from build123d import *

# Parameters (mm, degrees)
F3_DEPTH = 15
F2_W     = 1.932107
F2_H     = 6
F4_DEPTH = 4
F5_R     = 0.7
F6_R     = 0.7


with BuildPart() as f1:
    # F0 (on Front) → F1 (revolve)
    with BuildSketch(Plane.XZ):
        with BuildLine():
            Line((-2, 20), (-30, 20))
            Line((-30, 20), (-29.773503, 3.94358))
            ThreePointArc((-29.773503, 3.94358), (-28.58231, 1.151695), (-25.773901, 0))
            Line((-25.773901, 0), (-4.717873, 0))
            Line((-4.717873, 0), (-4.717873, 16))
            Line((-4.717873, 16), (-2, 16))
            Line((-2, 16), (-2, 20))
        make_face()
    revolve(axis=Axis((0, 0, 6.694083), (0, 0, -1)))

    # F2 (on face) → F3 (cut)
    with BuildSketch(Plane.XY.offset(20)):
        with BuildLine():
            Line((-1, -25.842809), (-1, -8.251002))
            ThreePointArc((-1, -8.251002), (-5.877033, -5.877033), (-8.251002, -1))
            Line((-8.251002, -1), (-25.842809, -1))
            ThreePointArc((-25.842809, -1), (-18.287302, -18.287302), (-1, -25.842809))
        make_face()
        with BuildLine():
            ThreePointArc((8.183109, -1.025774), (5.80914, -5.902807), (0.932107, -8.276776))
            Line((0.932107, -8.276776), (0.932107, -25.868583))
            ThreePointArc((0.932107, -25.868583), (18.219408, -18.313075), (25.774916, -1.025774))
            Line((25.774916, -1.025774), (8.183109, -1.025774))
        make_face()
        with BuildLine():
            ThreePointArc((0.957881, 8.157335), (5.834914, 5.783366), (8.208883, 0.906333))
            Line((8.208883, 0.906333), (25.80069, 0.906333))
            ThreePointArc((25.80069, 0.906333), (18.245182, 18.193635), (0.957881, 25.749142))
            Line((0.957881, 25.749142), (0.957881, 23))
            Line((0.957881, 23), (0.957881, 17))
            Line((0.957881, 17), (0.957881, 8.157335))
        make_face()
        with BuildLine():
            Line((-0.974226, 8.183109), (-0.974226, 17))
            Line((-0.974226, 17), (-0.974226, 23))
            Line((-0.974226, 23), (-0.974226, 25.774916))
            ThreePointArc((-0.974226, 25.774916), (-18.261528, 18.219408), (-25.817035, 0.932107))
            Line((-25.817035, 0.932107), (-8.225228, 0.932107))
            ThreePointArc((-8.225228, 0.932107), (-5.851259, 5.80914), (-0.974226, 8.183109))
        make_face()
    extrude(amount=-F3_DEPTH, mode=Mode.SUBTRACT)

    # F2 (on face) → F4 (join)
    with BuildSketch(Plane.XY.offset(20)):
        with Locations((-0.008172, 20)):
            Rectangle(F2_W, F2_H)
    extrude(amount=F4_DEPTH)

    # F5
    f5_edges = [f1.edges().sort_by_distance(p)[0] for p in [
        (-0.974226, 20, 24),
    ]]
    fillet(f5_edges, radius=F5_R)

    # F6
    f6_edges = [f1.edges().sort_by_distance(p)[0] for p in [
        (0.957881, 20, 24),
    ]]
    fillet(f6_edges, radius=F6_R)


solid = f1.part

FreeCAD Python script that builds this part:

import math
import FreeCAD as App
import Part
import Sketcher

V = App.Vector


def edges_at(feature, points):
    """Names of the edges that pass closest to the given points."""
    edges = feature.Shape.Edges
    near = lambda p: min(range(len(edges)), key=lambda i: edges[i].distToShape(Part.Vertex(*p))[0])
    return sorted({f"Edge{near(p) + 1}" for p in points})


def add_polygon(sketch, points):
    """Adds a closed chain of lines whose ends are joined by coincident constraints."""
    first, n = sketch.GeometryCount, len(points)
    for a, b in zip(points, points[1:] + points[:1]):
        sketch.addGeometry(Part.LineSegment(App.Vector(*a, 0), App.Vector(*b, 0)), False)
    for i in range(n):
        sketch.addConstraint(Sketcher.Constraint("Coincident", first + i, 2, first + (i + 1) % n, 1))

doc = App.newDocument("Part")
body = doc.addObject("PartDesign::Body", "Body")

sketch1 = body.newObject("Sketcher::SketchObject", "Sketch")
sketch1.AttachmentSupport = (doc.getObject("XZ_Plane"), [""])
sketch1.MapMode = "FlatFace"
sketch1.addGeometry(Part.LineSegment(V(-2, 20, 0), V(-30, 20, 0)), False)
sketch1.addGeometry(Part.LineSegment(V(-30, 20, 0), V(-29.773503, 3.94358, 0)), False)
sketch1.addGeometry(Part.ArcOfCircle(Part.Circle(V(-25.773902, 3.999999, 0), V(0, 0, 1), 3.999999), math.radians(-179.191829), math.radians(-89.999988)), False)
sketch1.addGeometry(Part.LineSegment(V(-25.773901, 0, 0), V(-4.717873, 0, 0)), False)
sketch1.addGeometry(Part.LineSegment(V(-4.717873, 0, 0), V(-4.717873, 16, 0)), False)
sketch1.addGeometry(Part.LineSegment(V(-4.717873, 16, 0), V(-2, 16, 0)), False)
sketch1.addGeometry(Part.LineSegment(V(-2, 16, 0), V(-2, 20, 0)), False)
sketch1.addConstraint(Sketcher.Constraint("Coincident", 0, 2, 1, 1))
sketch1.addConstraint(Sketcher.Constraint("Tangent", 1, 2, 2, 1))
sketch1.addConstraint(Sketcher.Constraint("Tangent", 2, 2, 3, 1))
sketch1.addConstraint(Sketcher.Constraint("Coincident", 3, 2, 4, 1))
sketch1.addConstraint(Sketcher.Constraint("Coincident", 4, 2, 5, 1))
sketch1.addConstraint(Sketcher.Constraint("Coincident", 5, 2, 6, 1))
sketch1.addConstraint(Sketcher.Constraint("Coincident", 6, 2, 0, 1))
sketch1.addConstraint(Sketcher.Constraint("Horizontal", 0))
sketch1.addConstraint(Sketcher.Constraint("Horizontal", 3))
sketch1.addConstraint(Sketcher.Constraint("Vertical", 4))
sketch1.addConstraint(Sketcher.Constraint("Horizontal", 5))
sketch1.addConstraint(Sketcher.Constraint("Vertical", 6))
sketch1.addConstraint(Sketcher.Constraint("PointOnObject", 2, 2, -1))
sketch1.addConstraint(Sketcher.Constraint("Radius", 2, 3.999999))
sketch1.addConstraint(Sketcher.Constraint("DistanceX", 0, 2, 0, 1, 28.0))
sketch1.addConstraint(Sketcher.Constraint("DistanceY", 4, 1, 4, 2, 16.0))
sketch1.addConstraint(Sketcher.Constraint("DistanceY", 6, 1, 6, 2, 4.0))
sketch1.addConstraint(Sketcher.Constraint("DistanceX", 0, 2, -1, 1, 30.0))
sketch1.addConstraint(Sketcher.Constraint("DistanceX", 2, 3, -1, 1, 25.773902))
sketch1.addConstraint(Sketcher.Constraint("DistanceX", 3, 1, 3, 2, 21.056028))
revolution = body.newObject("PartDesign::Revolution", "Revolution")
revolution.Profile = sketch1
revolution.ReferenceAxis = (sketch1, ["V_Axis"])
revolution.Angle = 360

sketch2 = body.newObject("Sketcher::SketchObject", "Sketch001")
sketch2.AttachmentSupport = (doc.getObject("XY_Plane"), [""])
sketch2.MapMode = "FlatFace"
sketch2.AttachmentOffset = App.Placement(V(0, 0, 20), App.Rotation())
sketch2.addGeometry(Part.LineSegment(V(-1, -25.842809, 0), V(-1, -8.251002, 0)), False)
sketch2.addGeometry(Part.ArcOfCircle(Part.Circle(V(0, 0, 0), V(0, 0, 1), 8.31138), math.radians(-173.089604), math.radians(-96.910396)), False)
sketch2.addGeometry(Part.LineSegment(V(-8.251002, -1, 0), V(-25.842809, -1, 0)), False)
sketch2.addGeometry(Part.ArcOfCircle(Part.Circle(V(-0.000003, -0.000003, 0), V(0, 0, 1), 25.862147), math.radians(-177.784023), math.radians(-92.215977)), False)
sketch2.addGeometry(Part.ArcOfCircle(Part.Circle(V(-0.067893, -0.025774, 0), V(0, 0, 1), 8.31138), math.radians(-83.089604), math.radians(-6.910396)), False)
sketch2.addGeometry(Part.LineSegment(V(0.932107, -8.276776, 0), V(0.932107, -25.868583, 0)), False)
sketch2.addGeometry(Part.ArcOfCircle(Part.Circle(V(-0.067894, -0.025773, 0), V(0, 0, 1), 25.862151), math.radians(-87.784015), math.radians(-2.215985)), False)
sketch2.addGeometry(Part.LineSegment(V(25.774916, -1.025774, 0), V(8.183109, -1.025774, 0)), False)
sketch2.addGeometry(Part.ArcOfCircle(Part.Circle(V(-0.042119, -0.093667, 0), V(0, 0, 1), 8.31138), math.radians(6.910396), math.radians(83.089604)), False)
sketch2.addGeometry(Part.LineSegment(V(8.208883, 0.906333, 0), V(25.80069, 0.906333, 0)), False)
sketch2.addGeometry(Part.ArcOfCircle(Part.Circle(V(-0.042118, -0.093666, 0), V(0, 0, 1), 25.862149), math.radians(2.215981), math.radians(87.784019)), False)
sketch2.addGeometry(Part.LineSegment(V(0.957881, 25.749142, 0), V(0.957881, 8.157335, 0)), False)
sketch2.addGeometry(Part.LineSegment(V(-0.974226, 8.183109, 0), V(-0.974226, 25.774916, 0)), False)
sketch2.addGeometry(Part.ArcOfCircle(Part.Circle(V(0.025773, -0.067892, 0), V(0, 0, 1), 25.862149), math.radians(92.215981), math.radians(177.784019)), False)
sketch2.addGeometry(Part.LineSegment(V(-25.817035, 0.932107, 0), V(-8.225228, 0.932107, 0)), False)
sketch2.addGeometry(Part.ArcOfCircle(Part.Circle(V(0.025774, -0.067893, 0), V(0, 0, 1), 8.31138), math.radians(96.910396), math.radians(173.089604)), False)
sketch2.addConstraint(Sketcher.Constraint("Coincident", 0, 2, 1, 2))
sketch2.addConstraint(Sketcher.Constraint("Coincident", 1, 1, 2, 1))
sketch2.addConstraint(Sketcher.Constraint("Coincident", 2, 2, 3, 1))
sketch2.addConstraint(Sketcher.Constraint("Coincident", 3, 2, 0, 1))
sketch2.addConstraint(Sketcher.Constraint("Coincident", 4, 1, 5, 1))
sketch2.addConstraint(Sketcher.Constraint("Coincident", 5, 2, 6, 1))
sketch2.addConstraint(Sketcher.Constraint("Coincident", 6, 2, 7, 1))
sketch2.addConstraint(Sketcher.Constraint("Coincident", 7, 2, 4, 2))
sketch2.addConstraint(Sketcher.Constraint("Coincident", 8, 1, 9, 1))
sketch2.addConstraint(Sketcher.Constraint("Coincident", 9, 2, 10, 1))
sketch2.addConstraint(Sketcher.Constraint("Coincident", 10, 2, 11, 1))
sketch2.addConstraint(Sketcher.Constraint("Coincident", 11, 2, 8, 2))
sketch2.addConstraint(Sketcher.Constraint("Coincident", 12, 2, 13, 1))
sketch2.addConstraint(Sketcher.Constraint("Coincident", 13, 2, 14, 1))
sketch2.addConstraint(Sketcher.Constraint("Coincident", 14, 2, 15, 2))
sketch2.addConstraint(Sketcher.Constraint("Coincident", 15, 1, 12, 1))
sketch2.addConstraint(Sketcher.Constraint("Vertical", 0))
sketch2.addConstraint(Sketcher.Constraint("Horizontal", 2))
sketch2.addConstraint(Sketcher.Constraint("Vertical", 5))
sketch2.addConstraint(Sketcher.Constraint("Horizontal", 7))
sketch2.addConstraint(Sketcher.Constraint("Horizontal", 9))
sketch2.addConstraint(Sketcher.Constraint("Vertical", 11))
sketch2.addConstraint(Sketcher.Constraint("Vertical", 12))
sketch2.addConstraint(Sketcher.Constraint("Horizontal", 14))
sketch2.addConstraint(Sketcher.Constraint("Coincident", 1, 3, -1, 1))
sketch2.addConstraint(Sketcher.Constraint("Coincident", 3, 3, -1, 1))
sketch2.addConstraint(Sketcher.Constraint("Coincident", 6, 3, 4, 3))
sketch2.addConstraint(Sketcher.Constraint("Coincident", 10, 3, 8, 3))
sketch2.addConstraint(Sketcher.Constraint("Coincident", 15, 3, 13, 3))
sketch2.addConstraint(Sketcher.Constraint("DistanceX", 0, 2, -1, 1, 1.0))
sketch2.addConstraint(Sketcher.Constraint("DistanceY", 1, 1, -1, 1, 1.0))
sketch2.addConstraint(Sketcher.Constraint("Radius", 1, 8.31138))
sketch2.addConstraint(Sketcher.Constraint("Radius", 4, 8.31138))
sketch2.addConstraint(Sketcher.Constraint("Radius", 6, 25.862151))
sketch2.addConstraint(Sketcher.Constraint("Radius", 8, 8.31138))
sketch2.addConstraint(Sketcher.Constraint("Radius", 10, 25.862149))
sketch2.addConstraint(Sketcher.Constraint("Radius", 13, 25.862149))
sketch2.addConstraint(Sketcher.Constraint("Radius", 15, 8.31138))
sketch2.addConstraint(Sketcher.Constraint("Radius", 3, 25.862147))
sketch2.addConstraint(Sketcher.Constraint("DistanceX", 7, 2, 7, 1, 17.591807))
sketch2.addConstraint(Sketcher.Constraint("DistanceX", 9, 1, 9, 2, 17.591807))
sketch2.addConstraint(Sketcher.Constraint("DistanceX", 14, 1, 14, 2, 17.591807))
sketch2.addConstraint(Sketcher.Constraint("DistanceY", 5, 2, 5, 1, 17.591807))
sketch2.addConstraint(Sketcher.Constraint("DistanceY", 11, 2, 11, 1, 17.591807))
sketch2.addConstraint(Sketcher.Constraint("DistanceY", 12, 1, 12, 2, 17.591807))
sketch2.addConstraint(Sketcher.Constraint("DistanceX", 8, 3, -1, 1, 0.042119))
sketch2.addConstraint(Sketcher.Constraint("DistanceX", -1, 1, 7, 2, 8.183109))
sketch2.addConstraint(Sketcher.Constraint("DistanceY", -1, 1, 10, 2, 25.749142))
sketch2.addConstraint(Sketcher.Constraint("DistanceY", -1, 1, 15, 1, 8.183109))
sketch2.addConstraint(Sketcher.Constraint("DistanceY", 4, 3, 3, 3, 0.025771))
sketch2.addConstraint(Sketcher.Constraint("DistanceX", 10, 3, 13, 3, 0.067891))
pocket1 = body.newObject("PartDesign::Pocket", "Pocket")
pocket1.Profile = sketch2
pocket1.Length = 15

sketch3 = body.newObject("Sketcher::SketchObject", "Sketch002")
sketch3.AttachmentSupport = (doc.getObject("XY_Plane"), [""])
sketch3.MapMode = "FlatFace"
sketch3.AttachmentOffset = App.Placement(V(0, 0, 20), App.Rotation())
add_polygon(sketch3, [(-0.974225, 23), (-0.974225, 17), (0.957882, 17), (0.957882, 23)])
sketch3.addConstraint(Sketcher.Constraint("Vertical", 0))
sketch3.addConstraint(Sketcher.Constraint("Horizontal", 1))
sketch3.addConstraint(Sketcher.Constraint("Vertical", 2))
sketch3.addConstraint(Sketcher.Constraint("Horizontal", 3))
sketch3.addConstraint(Sketcher.Constraint("DistanceY", 0, 2, 0, 1, 6.0))
sketch3.addConstraint(Sketcher.Constraint("DistanceY", -1, 1, 0, 2, 17.0))
sketch3.addConstraint(Sketcher.Constraint("DistanceX", 1, 1, 1, 2, 1.932107))
sketch3.addConstraint(Sketcher.Constraint("DistanceX", -1, 1, 1, 2, 0.957882))
pad1 = body.newObject("PartDesign::Pad", "Pad")
pad1.Profile = sketch3
pad1.Length = 4
doc.recompute()

fillet = body.newObject("PartDesign::Fillet", "Fillet")
fillet.Base = (pad1, edges_at(pad1, [(-0.974, 20, 24)]))
fillet.Radius = 0.7
doc.recompute()

fillet2 = body.newObject("PartDesign::Fillet", "Fillet001")
fillet2.Base = (fillet, edges_at(fillet, [(0.958, 20, 24)]))
fillet2.Radius = 0.7

doc.recompute()
